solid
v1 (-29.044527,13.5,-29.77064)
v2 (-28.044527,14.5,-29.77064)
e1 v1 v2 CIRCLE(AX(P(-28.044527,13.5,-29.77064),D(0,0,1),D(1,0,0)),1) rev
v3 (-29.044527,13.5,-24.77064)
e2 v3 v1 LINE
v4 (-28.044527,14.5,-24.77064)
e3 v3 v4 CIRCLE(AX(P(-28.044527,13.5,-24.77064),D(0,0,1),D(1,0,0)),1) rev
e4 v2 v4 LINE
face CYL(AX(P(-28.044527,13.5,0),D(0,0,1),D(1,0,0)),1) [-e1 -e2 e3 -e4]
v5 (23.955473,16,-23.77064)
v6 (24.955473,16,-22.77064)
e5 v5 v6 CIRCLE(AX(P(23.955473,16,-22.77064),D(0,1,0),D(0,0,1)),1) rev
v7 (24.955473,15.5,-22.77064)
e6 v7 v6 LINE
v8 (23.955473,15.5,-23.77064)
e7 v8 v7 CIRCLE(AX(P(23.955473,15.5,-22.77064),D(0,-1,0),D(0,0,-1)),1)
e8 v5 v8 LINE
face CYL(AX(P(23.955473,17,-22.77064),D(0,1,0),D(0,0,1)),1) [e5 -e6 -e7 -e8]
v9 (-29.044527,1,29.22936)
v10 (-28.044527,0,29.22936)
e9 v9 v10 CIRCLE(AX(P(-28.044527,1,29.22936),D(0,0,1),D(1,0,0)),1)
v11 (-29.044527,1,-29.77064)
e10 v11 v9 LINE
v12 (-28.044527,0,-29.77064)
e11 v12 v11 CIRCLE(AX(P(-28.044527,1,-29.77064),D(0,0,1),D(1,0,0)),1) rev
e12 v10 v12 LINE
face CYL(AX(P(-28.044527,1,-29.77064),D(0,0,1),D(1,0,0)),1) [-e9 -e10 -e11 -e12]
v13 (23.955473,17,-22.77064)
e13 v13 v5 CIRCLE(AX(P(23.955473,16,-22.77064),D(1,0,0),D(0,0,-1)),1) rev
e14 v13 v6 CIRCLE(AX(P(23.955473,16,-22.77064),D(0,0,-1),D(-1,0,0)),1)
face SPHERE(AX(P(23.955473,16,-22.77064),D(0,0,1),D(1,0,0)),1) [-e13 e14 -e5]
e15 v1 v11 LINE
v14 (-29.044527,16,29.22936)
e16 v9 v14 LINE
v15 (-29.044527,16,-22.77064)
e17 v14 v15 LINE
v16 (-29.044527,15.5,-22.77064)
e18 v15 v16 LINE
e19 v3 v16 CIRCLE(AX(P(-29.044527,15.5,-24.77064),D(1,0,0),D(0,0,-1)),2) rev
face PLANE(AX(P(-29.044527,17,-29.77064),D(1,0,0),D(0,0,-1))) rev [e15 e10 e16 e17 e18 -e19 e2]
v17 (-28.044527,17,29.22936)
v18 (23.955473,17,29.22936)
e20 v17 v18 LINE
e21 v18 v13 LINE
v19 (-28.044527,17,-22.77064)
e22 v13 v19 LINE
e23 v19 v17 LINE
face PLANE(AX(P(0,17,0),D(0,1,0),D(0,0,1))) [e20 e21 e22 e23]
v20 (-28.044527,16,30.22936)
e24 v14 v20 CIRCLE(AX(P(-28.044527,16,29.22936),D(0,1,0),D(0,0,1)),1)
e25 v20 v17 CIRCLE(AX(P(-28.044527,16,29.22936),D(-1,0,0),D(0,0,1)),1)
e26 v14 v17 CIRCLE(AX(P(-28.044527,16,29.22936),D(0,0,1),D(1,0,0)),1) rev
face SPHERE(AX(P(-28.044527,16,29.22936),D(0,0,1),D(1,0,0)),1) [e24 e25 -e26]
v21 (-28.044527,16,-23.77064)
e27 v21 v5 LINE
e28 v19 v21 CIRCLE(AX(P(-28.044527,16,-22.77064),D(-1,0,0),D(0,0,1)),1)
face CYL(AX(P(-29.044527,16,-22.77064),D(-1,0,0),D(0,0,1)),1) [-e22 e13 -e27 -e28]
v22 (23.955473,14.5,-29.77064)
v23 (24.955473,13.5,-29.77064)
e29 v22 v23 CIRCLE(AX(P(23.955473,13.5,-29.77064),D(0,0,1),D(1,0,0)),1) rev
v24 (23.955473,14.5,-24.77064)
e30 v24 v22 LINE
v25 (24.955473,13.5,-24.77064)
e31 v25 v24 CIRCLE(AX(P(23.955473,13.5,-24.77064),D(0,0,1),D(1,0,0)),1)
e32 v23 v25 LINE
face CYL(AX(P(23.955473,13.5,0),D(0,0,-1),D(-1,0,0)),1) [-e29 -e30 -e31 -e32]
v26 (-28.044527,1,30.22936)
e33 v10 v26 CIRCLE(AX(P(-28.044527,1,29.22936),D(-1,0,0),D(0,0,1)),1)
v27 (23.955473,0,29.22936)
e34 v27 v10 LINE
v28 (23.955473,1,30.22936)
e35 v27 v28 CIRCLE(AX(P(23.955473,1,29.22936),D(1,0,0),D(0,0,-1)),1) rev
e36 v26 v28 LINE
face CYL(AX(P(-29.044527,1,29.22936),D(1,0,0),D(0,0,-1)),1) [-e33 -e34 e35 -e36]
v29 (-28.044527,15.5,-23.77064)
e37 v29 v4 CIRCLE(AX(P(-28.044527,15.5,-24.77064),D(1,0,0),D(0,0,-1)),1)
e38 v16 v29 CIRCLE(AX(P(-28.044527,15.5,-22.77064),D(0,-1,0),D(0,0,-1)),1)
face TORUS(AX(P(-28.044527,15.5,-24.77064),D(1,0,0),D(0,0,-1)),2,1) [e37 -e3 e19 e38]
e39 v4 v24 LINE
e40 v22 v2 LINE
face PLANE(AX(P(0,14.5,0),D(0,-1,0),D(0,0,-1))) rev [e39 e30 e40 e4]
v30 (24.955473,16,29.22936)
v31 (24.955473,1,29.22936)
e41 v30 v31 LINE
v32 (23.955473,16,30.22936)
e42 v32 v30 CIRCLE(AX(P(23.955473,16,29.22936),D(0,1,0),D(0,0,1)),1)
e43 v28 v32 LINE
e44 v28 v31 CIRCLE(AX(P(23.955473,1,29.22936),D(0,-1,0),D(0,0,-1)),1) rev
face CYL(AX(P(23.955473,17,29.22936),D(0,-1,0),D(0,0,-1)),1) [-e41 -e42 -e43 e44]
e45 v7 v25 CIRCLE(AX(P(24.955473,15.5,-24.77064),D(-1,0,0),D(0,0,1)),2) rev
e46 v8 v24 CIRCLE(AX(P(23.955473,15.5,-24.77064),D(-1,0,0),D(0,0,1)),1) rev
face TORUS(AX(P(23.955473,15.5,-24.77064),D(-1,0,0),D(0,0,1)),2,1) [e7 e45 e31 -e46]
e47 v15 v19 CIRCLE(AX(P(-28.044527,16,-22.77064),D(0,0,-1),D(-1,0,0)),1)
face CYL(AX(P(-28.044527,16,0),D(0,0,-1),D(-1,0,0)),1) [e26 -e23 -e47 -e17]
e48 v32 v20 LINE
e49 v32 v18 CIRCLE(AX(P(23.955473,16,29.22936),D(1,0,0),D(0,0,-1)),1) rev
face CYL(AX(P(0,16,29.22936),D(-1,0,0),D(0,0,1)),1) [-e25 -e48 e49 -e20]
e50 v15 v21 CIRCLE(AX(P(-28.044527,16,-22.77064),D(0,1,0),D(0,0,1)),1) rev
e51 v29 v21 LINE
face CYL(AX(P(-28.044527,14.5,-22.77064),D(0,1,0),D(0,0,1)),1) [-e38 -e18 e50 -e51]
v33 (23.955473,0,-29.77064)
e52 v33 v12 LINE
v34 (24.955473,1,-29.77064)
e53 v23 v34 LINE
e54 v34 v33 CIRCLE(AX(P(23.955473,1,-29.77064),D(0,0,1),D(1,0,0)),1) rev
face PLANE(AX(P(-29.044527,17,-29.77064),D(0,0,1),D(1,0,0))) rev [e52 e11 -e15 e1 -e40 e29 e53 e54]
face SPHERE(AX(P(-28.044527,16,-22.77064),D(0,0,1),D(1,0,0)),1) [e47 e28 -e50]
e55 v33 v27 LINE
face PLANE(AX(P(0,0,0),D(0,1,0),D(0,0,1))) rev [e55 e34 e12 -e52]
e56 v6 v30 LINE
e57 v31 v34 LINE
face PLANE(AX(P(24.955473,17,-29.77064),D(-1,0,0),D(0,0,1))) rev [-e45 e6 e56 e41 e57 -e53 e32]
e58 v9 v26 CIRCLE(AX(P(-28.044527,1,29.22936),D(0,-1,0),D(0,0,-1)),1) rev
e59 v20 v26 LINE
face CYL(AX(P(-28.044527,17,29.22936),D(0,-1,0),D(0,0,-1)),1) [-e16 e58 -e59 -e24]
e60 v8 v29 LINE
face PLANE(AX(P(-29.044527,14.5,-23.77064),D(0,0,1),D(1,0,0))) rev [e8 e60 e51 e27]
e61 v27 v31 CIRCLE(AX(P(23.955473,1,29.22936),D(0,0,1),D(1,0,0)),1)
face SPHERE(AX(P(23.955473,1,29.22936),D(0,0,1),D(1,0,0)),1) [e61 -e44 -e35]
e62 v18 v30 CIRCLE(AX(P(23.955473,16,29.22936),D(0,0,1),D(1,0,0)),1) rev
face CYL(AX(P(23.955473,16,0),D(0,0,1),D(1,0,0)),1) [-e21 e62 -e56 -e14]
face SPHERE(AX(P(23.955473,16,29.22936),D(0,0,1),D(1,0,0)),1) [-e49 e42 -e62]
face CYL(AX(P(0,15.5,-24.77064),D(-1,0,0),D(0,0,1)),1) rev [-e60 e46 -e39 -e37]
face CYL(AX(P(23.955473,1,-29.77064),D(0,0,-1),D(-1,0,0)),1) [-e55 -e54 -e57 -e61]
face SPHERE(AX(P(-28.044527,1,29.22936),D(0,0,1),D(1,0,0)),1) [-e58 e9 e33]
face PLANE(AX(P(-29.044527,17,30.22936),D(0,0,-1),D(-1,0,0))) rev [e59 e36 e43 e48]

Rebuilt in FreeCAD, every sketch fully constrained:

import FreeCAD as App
import Part
import Sketcher

V = App.Vector
Q = App.Units.Quantity


def edges_at(feature, points):
    """Names of the edges that pass closest to the given points."""
    edges = feature.Shape.Edges
    near = lambda p: min(range(len(edges)), key=lambda i: edges[i].distToShape(Part.Vertex(*p))[0])
    return sorted({f"Edge{near(p) + 1}" for p in points})

doc = App.newDocument("Part")
body = doc.addObject("PartDesign::Body", "Body")

# Sketch on XZ plane
sketch1 = body.newObject("Sketcher::SketchObject", "Sketch")
sketch1.AttachmentSupport = (doc.getObject("XZ_Plane"), [""])
sketch1.MapMode = "FlatFace"
sketch1.addGeometry([
    Part.LineSegment(V(-29, -30, 0), V(-29, 30, 0)),
    Part.LineSegment(V(-29, 30, 0), V(25, 30, 0)),
    Part.LineSegment(V(25, 30, 0), V(25, -30, 0)),
    Part.LineSegment(V(25, -30, 0), V(-29, -30, 0)),
], False)
sketch1.addConstraint([
    Sketcher.Constraint("Coincident", 0, 2, 1, 1),
    Sketcher.Constraint("Coincident", 1, 2, 2, 1),
    Sketcher.Constraint("Coincident", 2, 2, 3, 1),
    Sketcher.Constraint("Coincident", 3, 2, 0, 1),
    Sketcher.Constraint("Vertical", 0),
    Sketcher.Constraint("Horizontal", 1),
    Sketcher.Constraint("Vertical", 2),
    Sketcher.Constraint("Horizontal", 3),
    Sketcher.Constraint("DistanceX", 1, 1, 1, 2, Q("54 mm")),
    Sketcher.Constraint("DistanceY", 0, 1, 0, 2, Q("60 mm")),
    Sketcher.Constraint("DistanceY", -1, 1, 0, 2, Q("30.22936 mm")),
    Sketcher.Constraint("DistanceX", 0, 2, -1, 1, Q("29.044527 mm")),
])
pad1 = body.newObject("PartDesign::Pad", "Pad")
pad1.Profile = sketch1
pad1.Length = 17
pad1.Reversed = True

# Sketch on XZ plane
sketch2 = body.newObject("Sketcher::SketchObject", "Sketch001")
sketch2.AttachmentSupport = (doc.getObject("XZ_Plane"), [""])
sketch2.MapMode = "FlatFace"
sketch2.AttachmentOffset = App.Placement(V(0, 0, -17), App.Rotation())
sketch2.addGeometry([
    Part.LineSegment(V(-29, -30, 0), V(-29, -24, 0)),
    Part.LineSegment(V(-29, -24, 0), V(25, -24, 0)),
    Part.LineSegment(V(25, -24, 0), V(25, -30, 0)),
    Part.LineSegment(V(25, -30, 0), V(-29, -30, 0)),
], False)
sketch2.addConstraint([
    Sketcher.Constraint("Coincident", 0, 2, 1, 1),
    Sketcher.Constraint("Coincident", 1, 2, 2, 1),
    Sketcher.Constraint("Coincident", 2, 2, 3, 1),
    Sketcher.Constraint("Coincident", 3, 2, 0, 1),
    Sketcher.Constraint("Vertical", 0),
    Sketcher.Constraint("Horizontal", 1),
    Sketcher.Constraint("Vertical", 2),
    Sketcher.Constraint("Horizontal", 3),
    Sketcher.Constraint("DistanceX", 1, 1, 1, 2, Q("54 mm")),
    Sketcher.Constraint("DistanceY", 0, 1, 0, 2, Q("6 mm")),
    Sketcher.Constraint("DistanceY", 0, 2, -1, 1, Q("23.77064 mm")),
    Sketcher.Constraint("DistanceX", 0, 2, -1, 1, Q("29.044527 mm")),
])
pocket1 = body.newObject("PartDesign::Pocket", "Pocket")
pocket1.Profile = sketch2
pocket1.Length = 2.5
pocket1.Reversed = True
doc.recompute()

fillet = body.newObject("PartDesign::Fillet", "Fillet")
fillet.Base = (pocket1, edges_at(pocket1, [
    (24.955, 17, 3.229),
    (-29.045, 17, 3.229),
    (-29.045, 14.5, -26.771),
    (-29.045, 15.75, -23.771),
    (24.955, 14.5, -26.771),
    (-2.045, 14.5, -23.771),
    (24.955, 15.75, -23.771),
    (-2.045, 17, -23.771),
    (24.955, 0, 0.229),
    (-2.045, 0, 30.229),
    (-29.045, 0, 0.229),
    (-2.045, 17, 30.229),
    (24.955, 8.5, 30.229),
    (-29.045, 8.5, 30.229),
]))
fillet.Radius = 1

doc.recompute()
